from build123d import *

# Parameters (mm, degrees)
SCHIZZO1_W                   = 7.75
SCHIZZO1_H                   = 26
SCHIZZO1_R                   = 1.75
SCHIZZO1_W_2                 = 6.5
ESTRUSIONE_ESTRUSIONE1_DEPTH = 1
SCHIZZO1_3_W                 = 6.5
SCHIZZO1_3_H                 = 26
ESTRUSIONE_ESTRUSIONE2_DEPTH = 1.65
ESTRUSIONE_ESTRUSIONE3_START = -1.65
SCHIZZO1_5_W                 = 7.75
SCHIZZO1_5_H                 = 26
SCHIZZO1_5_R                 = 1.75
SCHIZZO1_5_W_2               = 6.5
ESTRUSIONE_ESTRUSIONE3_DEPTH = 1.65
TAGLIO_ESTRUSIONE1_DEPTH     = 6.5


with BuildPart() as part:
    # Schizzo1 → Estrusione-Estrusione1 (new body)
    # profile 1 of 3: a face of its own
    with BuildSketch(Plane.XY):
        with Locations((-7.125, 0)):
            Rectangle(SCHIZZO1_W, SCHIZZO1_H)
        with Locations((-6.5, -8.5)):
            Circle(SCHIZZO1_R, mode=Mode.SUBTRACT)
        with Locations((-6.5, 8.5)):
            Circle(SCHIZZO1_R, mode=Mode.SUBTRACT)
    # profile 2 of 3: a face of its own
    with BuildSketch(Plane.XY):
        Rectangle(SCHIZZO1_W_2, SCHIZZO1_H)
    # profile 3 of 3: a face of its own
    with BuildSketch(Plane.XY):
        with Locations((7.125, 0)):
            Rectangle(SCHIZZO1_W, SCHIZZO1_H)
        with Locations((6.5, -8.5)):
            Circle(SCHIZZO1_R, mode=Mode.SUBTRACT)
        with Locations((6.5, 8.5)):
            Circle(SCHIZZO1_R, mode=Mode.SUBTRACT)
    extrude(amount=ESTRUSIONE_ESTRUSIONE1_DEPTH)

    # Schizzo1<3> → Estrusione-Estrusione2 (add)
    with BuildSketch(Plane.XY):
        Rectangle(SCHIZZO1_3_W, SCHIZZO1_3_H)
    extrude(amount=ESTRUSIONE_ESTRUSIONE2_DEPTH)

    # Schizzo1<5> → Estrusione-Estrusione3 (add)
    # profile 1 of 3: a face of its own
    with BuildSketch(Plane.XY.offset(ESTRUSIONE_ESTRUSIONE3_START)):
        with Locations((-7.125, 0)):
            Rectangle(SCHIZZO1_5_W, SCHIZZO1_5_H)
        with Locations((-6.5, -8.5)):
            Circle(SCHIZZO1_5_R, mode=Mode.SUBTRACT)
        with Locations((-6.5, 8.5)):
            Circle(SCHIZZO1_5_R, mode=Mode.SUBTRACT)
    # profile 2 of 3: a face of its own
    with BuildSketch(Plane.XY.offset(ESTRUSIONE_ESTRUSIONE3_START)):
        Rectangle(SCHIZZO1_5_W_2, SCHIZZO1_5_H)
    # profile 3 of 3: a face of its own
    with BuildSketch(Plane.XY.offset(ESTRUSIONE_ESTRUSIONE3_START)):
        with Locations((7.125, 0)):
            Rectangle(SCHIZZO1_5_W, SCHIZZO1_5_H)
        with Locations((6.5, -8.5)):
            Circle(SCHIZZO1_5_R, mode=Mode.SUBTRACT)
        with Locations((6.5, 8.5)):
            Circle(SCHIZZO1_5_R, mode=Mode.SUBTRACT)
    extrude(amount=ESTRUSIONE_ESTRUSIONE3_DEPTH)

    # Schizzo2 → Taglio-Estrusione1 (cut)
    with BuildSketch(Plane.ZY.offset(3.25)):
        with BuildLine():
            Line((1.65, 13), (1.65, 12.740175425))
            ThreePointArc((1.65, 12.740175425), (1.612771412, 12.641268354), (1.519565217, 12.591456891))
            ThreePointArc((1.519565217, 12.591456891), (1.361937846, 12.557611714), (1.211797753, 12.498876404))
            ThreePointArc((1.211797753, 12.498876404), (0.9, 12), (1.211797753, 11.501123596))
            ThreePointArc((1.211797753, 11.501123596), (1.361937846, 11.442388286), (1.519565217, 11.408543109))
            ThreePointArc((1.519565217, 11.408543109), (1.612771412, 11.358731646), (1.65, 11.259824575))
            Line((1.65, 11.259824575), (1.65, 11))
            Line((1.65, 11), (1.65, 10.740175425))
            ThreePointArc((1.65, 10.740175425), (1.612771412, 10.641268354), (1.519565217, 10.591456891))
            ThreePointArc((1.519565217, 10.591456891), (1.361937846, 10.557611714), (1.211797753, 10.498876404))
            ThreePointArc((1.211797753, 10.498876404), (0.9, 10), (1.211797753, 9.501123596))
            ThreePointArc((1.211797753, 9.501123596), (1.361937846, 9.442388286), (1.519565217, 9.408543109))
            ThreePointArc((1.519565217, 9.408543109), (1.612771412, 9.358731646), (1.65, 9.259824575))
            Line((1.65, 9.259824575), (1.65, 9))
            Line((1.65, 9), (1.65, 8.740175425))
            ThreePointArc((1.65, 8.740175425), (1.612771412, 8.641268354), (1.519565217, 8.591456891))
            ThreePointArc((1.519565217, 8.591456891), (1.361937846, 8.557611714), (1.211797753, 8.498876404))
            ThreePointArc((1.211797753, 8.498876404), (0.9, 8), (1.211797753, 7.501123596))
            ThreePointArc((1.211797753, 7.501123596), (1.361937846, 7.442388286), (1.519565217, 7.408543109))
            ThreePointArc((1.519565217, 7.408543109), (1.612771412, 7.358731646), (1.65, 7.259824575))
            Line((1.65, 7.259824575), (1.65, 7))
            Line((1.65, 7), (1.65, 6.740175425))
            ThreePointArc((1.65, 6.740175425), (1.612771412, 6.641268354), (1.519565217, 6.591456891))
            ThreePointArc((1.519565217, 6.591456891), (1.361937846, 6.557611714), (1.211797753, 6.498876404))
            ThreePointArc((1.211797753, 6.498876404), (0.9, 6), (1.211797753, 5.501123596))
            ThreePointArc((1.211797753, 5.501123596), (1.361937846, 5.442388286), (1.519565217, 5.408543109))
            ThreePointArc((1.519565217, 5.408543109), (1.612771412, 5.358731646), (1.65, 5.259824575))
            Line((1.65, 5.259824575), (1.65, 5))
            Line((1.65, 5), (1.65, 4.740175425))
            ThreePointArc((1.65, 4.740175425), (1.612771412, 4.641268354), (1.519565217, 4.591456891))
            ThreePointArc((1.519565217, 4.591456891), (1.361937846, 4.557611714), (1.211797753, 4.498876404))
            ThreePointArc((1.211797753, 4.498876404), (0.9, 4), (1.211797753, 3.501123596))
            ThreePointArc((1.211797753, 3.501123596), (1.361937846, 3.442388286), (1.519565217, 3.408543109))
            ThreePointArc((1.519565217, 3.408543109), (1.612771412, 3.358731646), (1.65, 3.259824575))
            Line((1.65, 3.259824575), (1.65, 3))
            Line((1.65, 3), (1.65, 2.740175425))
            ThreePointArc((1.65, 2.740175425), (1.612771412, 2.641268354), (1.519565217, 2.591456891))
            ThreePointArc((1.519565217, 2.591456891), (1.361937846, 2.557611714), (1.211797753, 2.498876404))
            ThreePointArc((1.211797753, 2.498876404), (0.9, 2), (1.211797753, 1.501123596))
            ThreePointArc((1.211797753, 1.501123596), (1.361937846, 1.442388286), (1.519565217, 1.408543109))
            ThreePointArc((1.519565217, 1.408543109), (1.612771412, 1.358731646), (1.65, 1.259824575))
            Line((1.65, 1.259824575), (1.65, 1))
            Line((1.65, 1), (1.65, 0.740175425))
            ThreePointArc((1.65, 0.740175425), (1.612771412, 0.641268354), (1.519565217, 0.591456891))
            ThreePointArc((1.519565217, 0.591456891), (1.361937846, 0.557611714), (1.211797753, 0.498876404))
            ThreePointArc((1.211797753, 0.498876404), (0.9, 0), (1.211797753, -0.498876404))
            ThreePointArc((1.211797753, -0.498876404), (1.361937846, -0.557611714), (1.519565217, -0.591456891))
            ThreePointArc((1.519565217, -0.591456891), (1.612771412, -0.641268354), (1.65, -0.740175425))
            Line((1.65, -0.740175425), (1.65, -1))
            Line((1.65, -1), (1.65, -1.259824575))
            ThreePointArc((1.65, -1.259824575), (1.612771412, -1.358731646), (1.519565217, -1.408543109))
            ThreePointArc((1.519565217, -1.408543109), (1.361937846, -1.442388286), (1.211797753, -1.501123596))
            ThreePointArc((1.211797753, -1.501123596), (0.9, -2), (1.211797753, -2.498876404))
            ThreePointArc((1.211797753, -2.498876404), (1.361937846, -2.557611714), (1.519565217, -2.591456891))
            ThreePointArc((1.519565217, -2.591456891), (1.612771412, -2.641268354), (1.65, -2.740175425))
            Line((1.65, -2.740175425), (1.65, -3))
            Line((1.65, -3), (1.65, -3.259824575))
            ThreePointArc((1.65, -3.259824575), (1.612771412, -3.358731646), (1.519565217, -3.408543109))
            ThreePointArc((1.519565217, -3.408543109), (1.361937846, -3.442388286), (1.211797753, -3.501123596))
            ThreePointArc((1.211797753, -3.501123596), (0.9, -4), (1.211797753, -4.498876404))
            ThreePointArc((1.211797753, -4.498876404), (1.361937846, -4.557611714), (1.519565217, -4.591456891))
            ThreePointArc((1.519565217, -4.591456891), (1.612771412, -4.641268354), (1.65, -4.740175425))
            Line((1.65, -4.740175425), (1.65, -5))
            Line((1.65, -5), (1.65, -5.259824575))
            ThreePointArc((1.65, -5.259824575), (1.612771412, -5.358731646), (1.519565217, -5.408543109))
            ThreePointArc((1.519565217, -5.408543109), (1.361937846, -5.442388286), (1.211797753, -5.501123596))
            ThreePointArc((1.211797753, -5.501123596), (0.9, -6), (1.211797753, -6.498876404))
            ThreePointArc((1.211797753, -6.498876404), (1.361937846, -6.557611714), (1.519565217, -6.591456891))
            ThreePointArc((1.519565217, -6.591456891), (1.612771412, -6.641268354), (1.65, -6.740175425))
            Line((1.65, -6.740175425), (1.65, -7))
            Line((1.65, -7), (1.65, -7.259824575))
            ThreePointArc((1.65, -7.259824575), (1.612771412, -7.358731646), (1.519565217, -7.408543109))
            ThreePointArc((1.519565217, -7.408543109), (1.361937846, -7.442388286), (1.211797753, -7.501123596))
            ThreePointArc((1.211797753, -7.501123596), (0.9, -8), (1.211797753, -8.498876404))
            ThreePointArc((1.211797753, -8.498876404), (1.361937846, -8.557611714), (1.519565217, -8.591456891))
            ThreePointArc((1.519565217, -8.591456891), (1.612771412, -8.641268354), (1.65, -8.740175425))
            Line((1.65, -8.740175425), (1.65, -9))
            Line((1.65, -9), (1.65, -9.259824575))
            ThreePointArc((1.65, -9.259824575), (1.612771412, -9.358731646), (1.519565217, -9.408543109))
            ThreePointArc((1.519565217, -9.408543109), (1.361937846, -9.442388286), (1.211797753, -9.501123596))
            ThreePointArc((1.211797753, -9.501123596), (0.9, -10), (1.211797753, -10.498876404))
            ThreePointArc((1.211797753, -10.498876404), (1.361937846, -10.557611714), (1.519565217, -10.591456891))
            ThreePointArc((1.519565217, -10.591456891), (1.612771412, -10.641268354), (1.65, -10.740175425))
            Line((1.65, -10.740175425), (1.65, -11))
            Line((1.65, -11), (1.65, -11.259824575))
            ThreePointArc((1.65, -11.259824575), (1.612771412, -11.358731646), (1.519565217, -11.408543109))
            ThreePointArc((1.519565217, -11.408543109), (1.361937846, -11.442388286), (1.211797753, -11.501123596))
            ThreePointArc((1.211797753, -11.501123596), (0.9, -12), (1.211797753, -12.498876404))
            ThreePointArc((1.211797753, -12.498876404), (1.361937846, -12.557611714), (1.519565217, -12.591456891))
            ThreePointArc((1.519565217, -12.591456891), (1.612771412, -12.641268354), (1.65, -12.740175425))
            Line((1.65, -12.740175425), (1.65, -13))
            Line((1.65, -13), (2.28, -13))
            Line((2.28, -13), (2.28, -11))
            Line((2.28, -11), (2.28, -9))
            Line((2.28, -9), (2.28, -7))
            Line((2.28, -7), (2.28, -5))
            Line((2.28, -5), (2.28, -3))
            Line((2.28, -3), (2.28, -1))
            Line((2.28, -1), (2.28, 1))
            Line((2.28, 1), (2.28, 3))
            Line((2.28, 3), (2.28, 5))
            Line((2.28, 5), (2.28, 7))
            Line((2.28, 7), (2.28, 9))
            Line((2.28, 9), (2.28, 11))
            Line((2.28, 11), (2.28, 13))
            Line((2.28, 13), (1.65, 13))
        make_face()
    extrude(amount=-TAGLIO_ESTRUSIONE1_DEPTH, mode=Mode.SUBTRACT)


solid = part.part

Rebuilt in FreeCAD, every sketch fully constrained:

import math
import FreeCAD as App
import Part
import Sketcher

doc = App.newDocument("Part")
params = doc.addObject("Spreadsheet::Sheet", "Params")
for row, (alias, value) in enumerate([
    ("sketch1_diameter", "3.5 mm"),
    ("sketch1_width", "22 mm"),
    ("sketch1_height", "26 mm"),
    ("pad1_length", "1 mm"),
    ("sketch2_height", "26 mm"),
    ("sketch2_width", "6.5 mm"),
    ("pad2_length", "1.65 mm"),
    ("sketch3_diameter", "3.5 mm"),
    ("sketch3_width", "22 mm"),
    ("sketch3_height", "26 mm"),
    ("pad3_length", "1.65 mm"),
    ("sketch4_radius", "1 mm"),
    ("sketch4_width", "26 mm"),
    ("sketch4_radius2", "0.15 mm"),
    ("sketch4_height", "0.63 mm"),
    ("pocket1_length", "6.5 mm"),
], start=1):
    params.set(f"A{row}", alias)
    params.set(f"B{row}", "=" + value)
    params.setAlias(f"B{row}", alias)

body = doc.addObject("PartDesign::Body", "Body")

sketch1 = body.newObject("Sketcher::SketchObject", "Sketch")
sketch1.AttachmentSupport = (doc.getObject("XY_Plane"), [""])
sketch1.MapMode = "FlatFace"
sketch1.addGeometry([
    Part.LineSegment(App.Vector(-11, 13, 0), App.Vector(-11, -13, 0)),
    Part.LineSegment(App.Vector(-11, -13, 0), App.Vector(11, -13, 0)),
    Part.LineSegment(App.Vector(11, -13, 0), App.Vector(11, 13, 0)),
    Part.LineSegment(App.Vector(11, 13, 0), App.Vector(-11, 13, 0)),
    Part.Circle(App.Vector(-6.5, -8.5, 0), App.Vector(0, 0, 1), 1.8),
    Part.Circle(App.Vector(-6.5, 8.5, 0), App.Vector(0, 0, 1), 1.8),
    Part.Circle(App.Vector(6.5, 8.5, 0), App.Vector(0, 0, 1), 1.8),
    Part.Circle(App.Vector(6.5, -8.5, 0), App.Vector(0, 0, 1), 1.8),
], False)
sketch1.addConstraint([
    Sketcher.Constraint("Coincident", 0, 2, 1, 1),
    Sketcher.Constraint("Coincident", 1, 2, 2, 1),
    Sketcher.Constraint("Coincident", 2, 2, 3, 1),
    Sketcher.Constraint("Coincident", 3, 2, 0, 1),
    Sketcher.Constraint("Vertical", 0),
    Sketcher.Constraint("Horizontal", 1),
    Sketcher.Constraint("Vertical", 2),
    Sketcher.Constraint("Horizontal", 3),
    Sketcher.Constraint("Equal", 4, 5),
    Sketcher.Constraint("Equal", 5, 6),
    Sketcher.Constraint("Equal", 6, 7),
    Sketcher.Constraint("Symmetric", 4, 3, 6, 3, -1, 1),
    Sketcher.Constraint("Symmetric", 5, 3, 7, 3, -1, 1),
    Sketcher.Constraint("Symmetric", 0, 2, 2, 2, -1, 1),
    Sketcher.Constraint("Symmetric", 5, 3, 6, 3, -2),
    Sketcher.Constraint("Diameter", 4, 3.5),
    Sketcher.Constraint("DistanceX", 1, 1, 1, 2, 22.0),
    Sketcher.Constraint("DistanceY", 0, 2, 0, 1, 26.0),
    Sketcher.Constraint("DistanceY", 4, 3, 5, 3, 17.0),
    Sketcher.Constraint("DistanceX", 5, 3, 6, 3, 13.0),
])
sketch1.setExpression("Constraints[15]", "Params.sketch1_diameter")
sketch1.setExpression("Constraints[16]", "Params.sketch1_width")
sketch1.setExpression("Constraints[17]", "Params.sketch1_height")
pad1 = body.newObject("PartDesign::Pad", "Pad")
pad1.Profile = sketch1
pad1.setExpression("Length", "Params.pad1_length")

sketch2 = body.newObject("Sketcher::SketchObject", "Sketch001")
sketch2.AttachmentSupport = (doc.getObject("XY_Plane"), [""])
sketch2.MapMode = "FlatFace"
sketch2.addGeometry([
    Part.LineSegment(App.Vector(-3, 13, 0), App.Vector(-3, -13, 0)),
    Part.LineSegment(App.Vector(-3, -13, 0), App.Vector(3, -13, 0)),
    Part.LineSegment(App.Vector(3, -13, 0), App.Vector(3, 13, 0)),
    Part.LineSegment(App.Vector(3, 13, 0), App.Vector(-3, 13, 0)),
], False)
sketch2.addConstraint([
    Sketcher.Constraint("Coincident", 0, 2, 1, 1),
    Sketcher.Constraint("Coincident", 1, 2, 2, 1),
    Sketcher.Constraint("Coincident", 2, 2, 3, 1),
    Sketcher.Constraint("Coincident", 3, 2, 0, 1),
    Sketcher.Constraint("Vertical", 0),
    Sketcher.Constraint("Horizontal", 1),
    Sketcher.Constraint("Vertical", 2),
    Sketcher.Constraint("Horizontal", 3),
    Sketcher.Constraint("Symmetric", 0, 2, 2, 2, -1, 1),
    Sketcher.Constraint("DistanceY", 0, 2, 0, 1, 26.0),
    Sketcher.Constraint("DistanceX", 1, 1, 1, 2, 6.5),
])
sketch2.setExpression("Constraints[9]", "Params.sketch2_height")
sketch2.setExpression("Constraints[10]", "Params.sketch2_width")
pad2 = body.newObject("PartDesign::Pad", "Pad001")
pad2.Profile = sketch2
pad2.setExpression("Length", "Params.pad2_length")

sketch3 = body.newObject("Sketcher::SketchObject", "Sketch002")
sketch3.AttachmentSupport = (doc.getObject("XY_Plane"), [""])
sketch3.MapMode = "FlatFace"
sketch3.AttachmentOffset = App.Placement(App.Vector(0, 0, -1.65), App.Rotation())
sketch3.addGeometry([
    Part.LineSegment(App.Vector(-11, 13, 0), App.Vector(-11, -13, 0)),
    Part.LineSegment(App.Vector(-11, -13, 0), App.Vector(11, -13, 0)),
    Part.LineSegment(App.Vector(11, -13, 0), App.Vector(11, 13, 0)),
    Part.LineSegment(App.Vector(11, 13, 0), App.Vector(-11, 13, 0)),
    Part.Circle(App.Vector(-6.5, -8.5, 0), App.Vector(0, 0, 1), 1.8),
    Part.Circle(App.Vector(-6.5, 8.5, 0), App.Vector(0, 0, 1), 1.8),
    Part.Circle(App.Vector(6.5, 8.5, 0), App.Vector(0, 0, 1), 1.8),
    Part.Circle(App.Vector(6.5, -8.5, 0), App.Vector(0, 0, 1), 1.8),
], False)
sketch3.addConstraint([
    Sketcher.Constraint("Coincident", 0, 2, 1, 1),
    Sketcher.Constraint("Coincident", 1, 2, 2, 1),
    Sketcher.Constraint("Coincident", 2, 2, 3, 1),
    Sketcher.Constraint("Coincident", 3, 2, 0, 1),
    Sketcher.Constraint("Vertical", 0),
    Sketcher.Constraint("Horizontal", 1),
    Sketcher.Constraint("Vertical", 2),
    Sketcher.Constraint("Horizontal", 3),
    Sketcher.Constraint("Equal", 4, 5),
    Sketcher.Constraint("Equal", 5, 6),
    Sketcher.Constraint("Equal", 6, 7),
    Sketcher.Constraint("Symmetric", 4, 3, 6, 3, -1, 1),
    Sketcher.Constraint("Symmetric", 5, 3, 7, 3, -1, 1),
    Sketcher.Constraint("Symmetric", 0, 2, 2, 2, -1, 1),
    Sketcher.Constraint("Symmetric", 5, 3, 6, 3, -2),
    Sketcher.Constraint("Diameter", 4, 3.5),
    Sketcher.Constraint("DistanceX", 1, 1, 1, 2, 22.0),
    Sketcher.Constraint("DistanceY", 0, 2, 0, 1, 26.0),
    Sketcher.Constraint("DistanceY", 4, 3, 5, 3, 17.0),
    Sketcher.Constraint("DistanceX", 5, 3, 6, 3, 13.0),
])
sketch3.setExpression("Constraints[15]", "Params.sketch3_diameter")
sketch3.setExpression("Constraints[16]", "Params.sketch3_width")
sketch3.setExpression("Constraints[17]", "Params.sketch3_height")
pad3 = body.newObject("PartDesign::Pad", "Pad002")
pad3.Profile = sketch3
pad3.setExpression("Length", "Params.pad3_length")

sketch4 = body.newObject("Sketcher::SketchObject", "Sketch003")
sketch4.AttachmentSupport = (doc.getObject("YZ_Plane"), [""])
sketch4.MapMode = "FlatFace"
sketch4.AttachmentOffset = App.Placement(App.Vector(0, 0, -3.25), App.Rotation())
sketch4.addGeometry([
    Part.LineSegment(App.Vector(13, 1.65, 0), App.Vector(12.74, 1.65, 0)),
    Part.ArcOfCircle(Part.Circle(App.Vector(12.74, 1.5, 0), App.Vector(0, 0, 1), 0.15), math.radians(90), math.radians(173)),
    Part.ArcOfCircle(Part.Circle(App.Vector(11.6, 1.65, 0), App.Vector(0, 0, 1), 1), math.radians(-25.99), math.radians(-7.49)),
    Part.ArcOfCircle(Part.Circle(App.Vector(12, 1.45, 0), App.Vector(0, 0, 1), 0.55), math.radians(-154), math.radians(-26)),
    Part.ArcOfCircle(Part.Circle(App.Vector(12.4, 1.65, 0), App.Vector(0, 0, 1), 1), math.radians(-172.51), math.radians(-154.01)),
    Part.ArcOfCircle(Part.Circle(App.Vector(11.26, 1.5, 0), App.Vector(0, 0, 1), 0.15), math.radians(7), math.radians(90)),
    Part.LineSegment(App.Vector(11.26, 1.65, 0), App.Vector(10.74, 1.65, 0)),
    Part.ArcOfCircle(Part.Circle(App.Vector(10.74, 1.5, 0), App.Vector(0, 0, 1), 0.15), math.radians(90), math.radians(173)),
    Part.ArcOfCircle(Part.Circle(App.Vector(9.6, 1.65, 0), App.Vector(0, 0, 1), 1), math.radians(-25.99), math.radians(-7.49)),
    Part.ArcOfCircle(Part.Circle(App.Vector(10, 1.45, 0), App.Vector(0, 0, 1), 0.55), math.radians(-154), math.radians(-26)),
    Part.ArcOfCircle(Part.Circle(App.Vector(10.4, 1.65, 0), App.Vector(0, 0, 1), 1), math.radians(-172.51), math.radians(-154.01)),
    Part.ArcOfCircle(Part.Circle(App.Vector(9.26, 1.5, 0), App.Vector(0, 0, 1), 0.15), math.radians(7), math.radians(90)),
    Part.LineSegment(App.Vector(9.26, 1.65, 0), App.Vector(8.74, 1.65, 0)),
    Part.ArcOfCircle(Part.Circle(App.Vector(8.74, 1.5, 0), App.Vector(0, 0, 1), 0.15), math.radians(90), math.radians(173)),
    Part.ArcOfCircle(Part.Circle(App.Vector(7.6, 1.65, 0), App.Vector(0, 0, 1), 1), math.radians(-25.99), math.radians(-7.49)),
    Part.ArcOfCircle(Part.Circle(App.Vector(8, 1.45, 0), App.Vector(0, 0, 1), 0.55), math.radians(-154), math.radians(-26)),
    Part.ArcOfCircle(Part.Circle(App.Vector(8.4, 1.65, 0), App.Vector(0, 0, 1), 1), math.radians(-172.51), math.radians(-154.01)),
    Part.ArcOfCircle(Part.Circle(App.Vector(7.26, 1.5, 0), App.Vector(0, 0, 1), 0.15), math.radians(7), math.radians(90)),
    Part.LineSegment(App.Vector(7.26, 1.65, 0), App.Vector(6.74, 1.65, 0)),
    Part.ArcOfCircle(Part.Circle(App.Vector(6.74, 1.5, 0), App.Vector(0, 0, 1), 0.15), math.radians(90), math.radians(173)),
    Part.ArcOfCircle(Part.Circle(App.Vector(5.6, 1.65, 0), App.Vector(0, 0, 1), 1), math.radians(-25.99), math.radians(-7.49)),
    Part.ArcOfCircle(Part.Circle(App.Vector(6, 1.45, 0), App.Vector(0, 0, 1), 0.55), math.radians(-154), math.radians(-26)),
    Part.ArcOfCircle(Part.Circle(App.Vector(6.4, 1.65, 0), App.Vector(0, 0, 1), 1), math.radians(-172.51), math.radians(-154.01)),
    Part.ArcOfCircle(Part.Circle(App.Vector(5.26, 1.5, 0), App.Vector(0, 0, 1), 0.15), math.radians(7), math.radians(90)),
    Part.LineSegment(App.Vector(5.26, 1.65, 0), App.Vector(4.74, 1.65, 0)),
    Part.ArcOfCircle(Part.Circle(App.Vector(4.74, 1.5, 0), App.Vector(0, 0, 1), 0.15), math.radians(90), math.radians(173)),
    Part.ArcOfCircle(Part.Circle(App.Vector(3.6, 1.65, 0), App.Vector(0, 0, 1), 1), math.radians(-25.99), math.radians(-7.49)),
    Part.ArcOfCircle(Part.Circle(App.Vector(4, 1.45, 0), App.Vector(0, 0, 1), 0.55), math.radians(-154), math.radians(-26)),
    Part.ArcOfCircle(Part.Circle(App.Vector(4.4, 1.65, 0), App.Vector(0, 0, 1), 1), math.radians(-172.51), math.radians(-154.01)),
    Part.ArcOfCircle(Part.Circle(App.Vector(3.26, 1.5, 0), App.Vector(0, 0, 1), 0.15), math.radians(7), math.radians(90)),
    Part.LineSegment(App.Vector(3.26, 1.65, 0), App.Vector(2.74, 1.65, 0)),
    Part.ArcOfCircle(Part.Circle(App.Vector(2.74, 1.5, 0), App.Vector(0, 0, 1), 0.15), math.radians(90), math.radians(173)),
    Part.ArcOfCircle(Part.Circle(App.Vector(1.6, 1.65, 0), App.Vector(0, 0, 1), 1), math.radians(-25.99), math.radians(-7.49)),
    Part.ArcOfCircle(Part.Circle(App.Vector(2, 1.45, 0), App.Vector(0, 0, 1), 0.55), math.radians(-154), math.radians(-26)),
    Part.ArcOfCircle(Part.Circle(App.Vector(2.4, 1.65, 0), App.Vector(0, 0, 1), 1), math.radians(-172.51), math.radians(-154.01)),
    Part.ArcOfCircle(Part.Circle(App.Vector(1.26, 1.5, 0), App.Vector(0, 0, 1), 0.15), math.radians(7), math.radians(90)),
    Part.LineSegment(App.Vector(1.26, 1.65, 0), App.Vector(0.74, 1.65, 0)),
    Part.ArcOfCircle(Part.Circle(App.Vector(0.74, 1.5, 0), App.Vector(0, 0, 1), 0.15), math.radians(90), math.radians(173)),
    Part.ArcOfCircle(Part.Circle(App.Vector(-0.4, 1.65, 0), App.Vector(0, 0, 1), 1), math.radians(-25.99), math.radians(-7.49)),
    Part.ArcOfCircle(Part.Circle(App.Vector(0, 1.45, 0), App.Vector(0, 0, 1), 0.55), math.radians(-154), math.radians(-26)),
    Part.ArcOfCircle(Part.Circle(App.Vector(0.4, 1.65, 0), App.Vector(0, 0, 1), 1), math.radians(-172.51), math.radians(-154.01)),
    Part.ArcOfCircle(Part.Circle(App.Vector(-0.74, 1.5, 0), App.Vector(0, 0, 1), 0.15), math.radians(7), math.radians(90)),
    Part.LineSegment(App.Vector(-0.74, 1.65, 0), App.Vector(-1.26, 1.65, 0)),
    Part.ArcOfCircle(Part.Circle(App.Vector(-1.26, 1.5, 0), App.Vector(0, 0, 1), 0.15), math.radians(90), math.radians(173)),
    Part.ArcOfCircle(Part.Circle(App.Vector(-2.4, 1.65, 0), App.Vector(0, 0, 1), 1), math.radians(-25.99), math.radians(-7.49)),
    Part.ArcOfCircle(Part.Circle(App.Vector(-2, 1.45, 0), App.Vector(0, 0, 1), 0.55), math.radians(-154), math.radians(-26)),
    Part.ArcOfCircle(Part.Circle(App.Vector(-1.6, 1.65, 0), App.Vector(0, 0, 1), 1), math.radians(-172.51), math.radians(-154.01)),
    Part.ArcOfCircle(Part.Circle(App.Vector(-2.74, 1.5, 0), App.Vector(0, 0, 1), 0.15), math.radians(7), math.radians(90)),
    Part.LineSegment(App.Vector(-2.74, 1.65, 0), App.Vector(-3.26, 1.65, 0)),
    Part.ArcOfCircle(Part.Circle(App.Vector(-3.26, 1.5, 0), App.Vector(0, 0, 1), 0.15), math.radians(90), math.radians(173)),
    Part.ArcOfCircle(Part.Circle(App.Vector(-4.4, 1.65, 0), App.Vector(0, 0, 1), 1), math.radians(-25.99), math.radians(-7.49)),
    Part.ArcOfCircle(Part.Circle(App.Vector(-4, 1.45, 0), App.Vector(0, 0, 1), 0.55), math.radians(-154), math.radians(-26)),
    Part.ArcOfCircle(Part.Circle(App.Vector(-3.6, 1.65, 0), App.Vector(0, 0, 1), 1), math.radians(-172.51), math.radians(-154.01)),
    Part.ArcOfCircle(Part.Circle(App.Vector(-4.74, 1.5, 0), App.Vector(0, 0, 1), 0.15), math.radians(7), math.radians(90)),
    Part.LineSegment(App.Vector(-4.74, 1.65, 0), App.Vector(-5.26, 1.65, 0)),
    Part.ArcOfCircle(Part.Circle(App.Vector(-5.26, 1.5, 0), App.Vector(0, 0, 1), 0.15), math.radians(90), math.radians(173)),
    Part.ArcOfCircle(Part.Circle(App.Vector(-6.4, 1.65, 0), App.Vector(0, 0, 1), 1), math.radians(-25.99), math.radians(-7.49)),
    Part.ArcOfCircle(Part.Circle(App.Vector(-6, 1.45, 0), App.Vector(0, 0, 1), 0.55), math.radians(-154), math.radians(-26)),
    Part.ArcOfCircle(Part.Circle(App.Vector(-5.6, 1.65, 0), App.Vector(0, 0, 1), 1), math.radians(-172.51), math.radians(-154.01)),
    Part.ArcOfCircle(Part.Circle(App.Vector(-6.74, 1.5, 0), App.Vector(0, 0, 1), 0.15), math.radians(7), math.radians(90)),
    Part.LineSegment(App.Vector(-6.74, 1.65, 0), App.Vector(-7.26, 1.65, 0)),
    Part.ArcOfCircle(Part.Circle(App.Vector(-7.26, 1.5, 0), App.Vector(0, 0, 1), 0.15), math.radians(90), math.radians(173)),
    Part.ArcOfCircle(Part.Circle(App.Vector(-8.4, 1.65, 0), App.Vector(0, 0, 1), 1), math.radians(-25.99), math.radians(-7.49)),
    Part.ArcOfCircle(Part.Circle(App.Vector(-8, 1.45, 0), App.Vector(0, 0, 1), 0.55), math.radians(-154), math.radians(-26)),
    Part.ArcOfCircle(Part.Circle(App.Vector(-7.6, 1.65, 0), App.Vector(0, 0, 1), 1), math.radians(-172.51), math.radians(-154.01)),
    Part.ArcOfCircle(Part.Circle(App.Vector(-8.74, 1.5, 0), App.Vector(0, 0, 1), 0.15), math.radians(7), math.radians(90)),
    Part.LineSegment(App.Vector(-8.74, 1.65, 0), App.Vector(-9.26, 1.65, 0)),
    Part.ArcOfCircle(Part.Circle(App.Vector(-9.26, 1.5, 0), App.Vector(0, 0, 1), 0.15), math.radians(90), math.radians(173)),
    Part.ArcOfCircle(Part.Circle(App.Vector(-10.4, 1.65, 0), App.Vector(0, 0, 1), 1), math.radians(-25.99), math.radians(-7.49)),
    Part.ArcOfCircle(Part.Circle(App.Vector(-10, 1.45, 0), App.Vector(0, 0, 1), 0.55), math.radians(-154), math.radians(-26)),
    Part.ArcOfCircle(Part.Circle(App.Vector(-9.6, 1.65, 0), App.Vector(0, 0, 1), 1), math.radians(-172.51), math.radians(-154.01)),
    Part.ArcOfCircle(Part.Circle(App.Vector(-10.74, 1.5, 0), App.Vector(0, 0, 1), 0.15), math.radians(7), math.radians(90)),
    Part.LineSegment(App.Vector(-10.74, 1.65, 0), App.Vector(-11.26, 1.65, 0)),
    Part.ArcOfCircle(Part.Circle(App.Vector(-11.26, 1.5, 0), App.Vector(0, 0, 1), 0.15), math.radians(90), math.radians(173)),
    Part.ArcOfCircle(Part.Circle(App.Vector(-12.4, 1.65, 0), App.Vector(0, 0, 1), 1), math.radians(-25.99), math.radians(-7.49)),
    Part.ArcOfCircle(Part.Circle(App.Vector(-12, 1.45, 0), App.Vector(0, 0, 1), 0.55), math.radians(-154), math.radians(-26)),
    Part.ArcOfCircle(Part.Circle(App.Vector(-11.6, 1.65, 0), App.Vector(0, 0, 1), 1), math.radians(-172.51), math.radians(-154.01)),
    Part.ArcOfCircle(Part.Circle(App.Vector(-12.74, 1.5, 0), App.Vector(0, 0, 1), 0.15), math.radians(7), math.radians(90)),
    Part.LineSegment(App.Vector(-12.74, 1.65, 0), App.Vector(-13, 1.65, 0)),
    Part.LineSegment(App.Vector(-13, 1.65, 0), App.Vector(-13, 2.28, 0)),
    Part.LineSegment(App.Vector(-13, 2.28, 0), App.Vector(13, 2.28, 0)),
    Part.LineSegment(App.Vector(13, 2.28, 0), App.Vector(13, 1.65, 0)),
], False)
sketch4.addConstraint([
    Sketcher.Constraint("Tangent", 0, 2, 1, 1),
    Sketcher.Constraint("Tangent", 1, 2, 2, 2),
    Sketcher.Constraint("Tangent", 2, 1, 3, 2),
    Sketcher.Constraint("Tangent", 3, 1, 4, 2),
    Sketcher.Constraint("Tangent", 4, 1, 5, 1),
    Sketcher.Constraint("Tangent", 5, 2, 6, 1),
    Sketcher.Constraint("Tangent", 6, 2, 7, 1),
    Sketcher.Constraint("Tangent", 7, 2, 8, 2),
    Sketcher.Constraint("Tangent", 8, 1, 9, 2),
    Sketcher.Constraint("Tangent", 9, 1, 10, 2),
    Sketcher.Constraint("Tangent", 10, 1, 11, 1),
    Sketcher.Constraint("Tangent", 11, 2, 12, 1),
    Sketcher.Constraint("Tangent", 12, 2, 13, 1),
    Sketcher.Constraint("Tangent", 13, 2, 14, 2),
    Sketcher.Constraint("Tangent", 14, 1, 15, 2),
    Sketcher.Constraint("Tangent", 15, 1, 16, 2),
    Sketcher.Constraint("Tangent", 16, 1, 17, 1),
    Sketcher.Constraint("Tangent", 17, 2, 18, 1),
    Sketcher.Constraint("Tangent", 18, 2, 19, 1),
    Sketcher.Constraint("Tangent", 19, 2, 20, 2),
    Sketcher.Constraint("Tangent", 20, 1, 21, 2),
    Sketcher.Constraint("Tangent", 21, 1, 22, 2),
    Sketcher.Constraint("Tangent", 22, 1, 23, 1),
    Sketcher.Constraint("Tangent", 23, 2, 24, 1),
    Sketcher.Constraint("Tangent", 24, 2, 25, 1),
    Sketcher.Constraint("Tangent", 25, 2, 26, 2),
    Sketcher.Constraint("Tangent", 26, 1, 27, 2),
    Sketcher.Constraint("Tangent", 27, 1, 28, 2),
    Sketcher.Constraint("Tangent", 28, 1, 29, 1),
    Sketcher.Constraint("Tangent", 29, 2, 30, 1),
    Sketcher.Constraint("Tangent", 30, 2, 31, 1),
    Sketcher.Constraint("Tangent", 31, 2, 32, 2),
    Sketcher.Constraint("Tangent", 32, 1, 33, 2),
    Sketcher.Constraint("Tangent", 33, 1, 34, 2),
    Sketcher.Constraint("Tangent", 34, 1, 35, 1),
    Sketcher.Constraint("Tangent", 35, 2, 36, 1),
    Sketcher.Constraint("Tangent", 36, 2, 37, 1),
    Sketcher.Constraint("Tangent", 37, 2, 38, 2),
    Sketcher.Constraint("Tangent", 38, 1, 39, 2),
    Sketcher.Constraint("Tangent", 39, 1, 40, 2),
    Sketcher.Constraint("Tangent", 40, 1, 41, 1),
    Sketcher.Constraint("Tangent", 41, 2, 42, 1),
    Sketcher.Constraint("Tangent", 42, 2, 43, 1),
    Sketcher.Constraint("Tangent", 43, 2, 44, 2),
    Sketcher.Constraint("Tangent", 44, 1, 45, 2),
    Sketcher.Constraint("Tangent", 45, 1, 46, 2),
    Sketcher.Constraint("Tangent", 46, 1, 47, 1),
    Sketcher.Constraint("Tangent", 47, 2, 48, 1),
    Sketcher.Constraint("Tangent", 48, 2, 49, 1),
    Sketcher.Constraint("Tangent", 49, 2, 50, 2),
    Sketcher.Constraint("Tangent", 50, 1, 51, 2),
    Sketcher.Constraint("Tangent", 51, 1, 52, 2),
    Sketcher.Constraint("Tangent", 52, 1, 53, 1),
    Sketcher.Constraint("Tangent", 53, 2, 54, 1),
    Sketcher.Constraint("Tangent", 54, 2, 55, 1),
    Sketcher.Constraint("Tangent", 55, 2, 56, 2),
    Sketcher.Constraint("Tangent", 56, 1, 57, 2),
    Sketcher.Constraint("Tangent", 57, 1, 58, 2),
    Sketcher.Constraint("Tangent", 58, 1, 59, 1),
    Sketcher.Constraint("Tangent", 59, 2, 60, 1),
    Sketcher.Constraint("Tangent", 60, 2, 61, 1),
    Sketcher.Constraint("Tangent", 61, 2, 62, 2),
    Sketcher.Constraint("Tangent", 62, 1, 63, 2),
    Sketcher.Constraint("Tangent", 63, 1, 64, 2),
    Sketcher.Constraint("Tangent", 64, 1, 65, 1),
    Sketcher.Constraint("Tangent", 65, 2, 66, 1),
    Sketcher.Constraint("Tangent", 66, 2, 67, 1),
    Sketcher.Constraint("Tangent", 67, 2, 68, 2),
    Sketcher.Constraint("Tangent", 68, 1, 69, 2),
    Sketcher.Constraint("Tangent", 69, 1, 70, 2),
    Sketcher.Constraint("Tangent", 70, 1, 71, 1),
    Sketcher.Constraint("Tangent", 71, 2, 72, 1),
    Sketcher.Constraint("Tangent", 72, 2, 73, 1),
    Sketcher.Constraint("Tangent", 73, 2, 74, 2),
    Sketcher.Constraint("Tangent", 74, 1, 75, 2),
    Sketcher.Constraint("Tangent", 75, 1, 76, 2),
    Sketcher.Constraint("Tangent", 76, 1, 77, 1),
    Sketcher.Constraint("Tangent", 77, 2, 78, 1),
    Sketcher.Constraint("Coincident", 78, 2, 79, 1),
    Sketcher.Constraint("Coincident", 79, 2, 80, 1),
    Sketcher.Constraint("Coincident", 80, 2, 81, 1),
    Sketcher.Constraint("Coincident", 81, 2, 0, 1),
    Sketcher.Constraint("Horizontal", 0),
    Sketcher.Constraint("Horizontal", 6),
    Sketcher.Constraint("Horizontal", 12),
    Sketcher.Constraint("Horizontal", 18),
    Sketcher.Constraint("Horizontal", 24),
    Sketcher.Constraint("Horizontal", 30),
    Sketcher.Constraint("Horizontal", 36),
    Sketcher.Constraint("Horizontal", 42),
    Sketcher.Constraint("Horizontal", 48),
    Sketcher.Constraint("Horizontal", 54),
    Sketcher.Constraint("Horizontal", 60),
    Sketcher.Constraint("Horizontal", 66),
    Sketcher.Constraint("Horizontal", 72),
    Sketcher.Constraint("Horizontal", 78),
    Sketcher.Constraint("Vertical", 79),
    Sketcher.Constraint("Horizontal", 80),
    Sketcher.Constraint("Vertical", 81),
    Sketcher.Constraint("Equal", 2, 4),
    Sketcher.Constraint("Equal", 1, 5),
    Sketcher.Constraint("Equal", 5, 7),
    Sketcher.Constraint("Equal", 4, 8),
    Sketcher.Constraint("Equal", 3, 9),
    Sketcher.Constraint("Equal", 8, 10),
    Sketcher.Constraint("Equal", 7, 11),
    Sketcher.Constraint("Equal", 11, 13),
    Sketcher.Constraint("Equal", 10, 14),
    Sketcher.Constraint("Equal", 9, 15),
    Sketcher.Constraint("Equal", 14, 16),
    Sketcher.Constraint("Equal", 13, 17),
    Sketcher.Constraint("Equal", 17, 19),
    Sketcher.Constraint("Equal", 16, 20),
    Sketcher.Constraint("Equal", 15, 21),
    Sketcher.Constraint("Equal", 20, 22),
    Sketcher.Constraint("Equal", 19, 23),
    Sketcher.Constraint("Equal", 23, 25),
    Sketcher.Constraint("Equal", 22, 26),
    Sketcher.Constraint("Equal", 21, 27),
    Sketcher.Constraint("Equal", 26, 28),
    Sketcher.Constraint("Equal", 25, 29),
    Sketcher.Constraint("Equal", 29, 31),
    Sketcher.Constraint("Equal", 28, 32),
    Sketcher.Constraint("Equal", 27, 33),
    Sketcher.Constraint("Equal", 32, 34),
    Sketcher.Constraint("Equal", 31, 35),
    Sketcher.Constraint("Equal", 35, 37),
    Sketcher.Constraint("Equal", 34, 38),
    Sketcher.Constraint("Equal", 33, 39),
    Sketcher.Constraint("Equal", 38, 40),
    Sketcher.Constraint("Equal", 37, 41),
    Sketcher.Constraint("Equal", 41, 43),
    Sketcher.Constraint("Equal", 40, 44),
    Sketcher.Constraint("Equal", 39, 45),
    Sketcher.Constraint("Equal", 44, 46),
    Sketcher.Constraint("Equal", 43, 47),
    Sketcher.Constraint("Equal", 47, 49),
    Sketcher.Constraint("Equal", 46, 50),
    Sketcher.Constraint("Equal", 45, 51),
    Sketcher.Constraint("Equal", 50, 52),
    Sketcher.Constraint("Equal", 49, 53),
    Sketcher.Constraint("Equal", 53, 55),
    Sketcher.Constraint("Equal", 52, 56),
    Sketcher.Constraint("Equal", 51, 57),
    Sketcher.Constraint("Equal", 56, 58),
    Sketcher.Constraint("Equal", 55, 59),
    Sketcher.Constraint("Equal", 59, 61),
    Sketcher.Constraint("Equal", 58, 62),
    Sketcher.Constraint("Equal", 57, 63),
    Sketcher.Constraint("Equal", 62, 64),
    Sketcher.Constraint("Equal", 61, 65),
    Sketcher.Constraint("Equal", 65, 67),
    Sketcher.Constraint("Equal", 64, 68),
    Sketcher.Constraint("Equal", 63, 69),
    Sketcher.Constraint("Equal", 68, 70),
    Sketcher.Constraint("Equal", 67, 71),
    Sketcher.Constraint("Equal", 71, 73),
    Sketcher.Constraint("Equal", 70, 74),
    Sketcher.Constraint("Equal", 69, 75),
    Sketcher.Constraint("Equal", 74, 76),
    Sketcher.Constraint("Equal", 73, 77),
    Sketcher.Constraint("Symmetric", 38, 3, 40, 3, -2),
    Sketcher.Constraint("Symmetric", 35, 3, 43, 3, -2),
    Sketcher.Constraint("Symmetric", 33, 3, 45, 3, -2),
    Sketcher.Constraint("Symmetric", 31, 3, 47, 3, -2),
    Sketcher.Constraint("Symmetric", 28, 3, 50, 3, -2),
    Sketcher.Constraint("Symmetric", 26, 3, 52, 3, -2),
    Sketcher.Constraint("Symmetric", 23, 3, 55, 3, -2),
    Sketcher.Constraint("Symmetric", 21, 3, 57, 3, -2),
    Sketcher.Constraint("Symmetric", 19, 3, 59, 3, -2),
    Sketcher.Constraint("Symmetric", 16, 3, 62, 3, -2),
    Sketcher.Constraint("Symmetric", 14, 3, 64, 3, -2),
    Sketcher.Constraint("Symmetric", 11, 3, 67, 3, -2),
    Sketcher.Constraint("Symmetric", 9, 3, 69, 3, -2),
    Sketcher.Constraint("Symmetric", 7, 3, 71, 3, -2),
    Sketcher.Constraint("Symmetric", 4, 3, 74, 3, -2),
    Sketcher.Constraint("Symmetric", 2, 3, 76, 3, -2),
    Sketcher.Constraint("Symmetric", 78, 2, 81, 2, -2),
    Sketcher.Constraint("Horizontal", 2, 3, 4, 3),
    Sketcher.Constraint("Horizontal", 1, 3, 5, 3),
    Sketcher.Constraint("Horizontal", 4, 3, 8, 3),
    Sketcher.Constraint("Horizontal", 3, 3, 9, 3),
    Sketcher.Constraint("Horizontal", 8, 3, 10, 3),
    Sketcher.Constraint("Horizontal", 7, 3, 11, 3),
    Sketcher.Constraint("Horizontal", 10, 3, 14, 3),
    Sketcher.Constraint("Horizontal", 9, 3, 15, 3),
    Sketcher.Constraint("Horizontal", 14, 3, 16, 3),
    Sketcher.Constraint("Horizontal", 13, 3, 17, 3),
    Sketcher.Constraint("Horizontal", 16, 3, 20, 3),
    Sketcher.Constraint("Horizontal", 15, 3, 21, 3),
    Sketcher.Constraint("Horizontal", 20, 3, 22, 3),
    Sketcher.Constraint("Horizontal", 19, 3, 23, 3),
    Sketcher.Constraint("Horizontal", 22, 3, 26, 3),
    Sketcher.Constraint("Horizontal", 21, 3, 27, 3),
    Sketcher.Constraint("Horizontal", 26, 3, 28, 3),
    Sketcher.Constraint("Horizontal", 25, 3, 29, 3),
    Sketcher.Constraint("Horizontal", 28, 3, 32, 3),
    Sketcher.Constraint("Horizontal", 27, 3, 33, 3),
    Sketcher.Constraint("Horizontal", 32, 3, 34, 3),
    Sketcher.Constraint("Horizontal", 31, 3, 35, 3),
    Sketcher.Constraint("Horizontal", 34, 3, 38, 3),
    Sketcher.Constraint("Horizontal", 33, 3, 39, 3),
    Sketcher.Constraint("Horizontal", 76, 3, 0, 2),
    Sketcher.Constraint("Equal", 6, 12),
    Sketcher.Constraint("Equal", 12, 18),
    Sketcher.Constraint("Equal", 18, 24),
    Sketcher.Constraint("Equal", 24, 30),
    Sketcher.Constraint("Equal", 30, 36),
    Sketcher.Constraint("Radius", 2, 1.0),
    Sketcher.Constraint("DistanceX", 80, 1, 80, 2, 26.0),
    Sketcher.Constraint("Radius", 1, 0.15),
    Sketcher.Constraint("DistanceX", -1, 1, 3, 3, 12.0),
    Sketcher.Constraint("Radius", 3, 0.555),
    Sketcher.Constraint("DistanceY", 79, 1, 79, 2, 0.63),
    Sketcher.Constraint("DistanceY", -1, 1, 1, 3, 1.5),
    Sketcher.Constraint("DistanceX", -1, 1, 2, 3, 11.6),
])
sketch4.setExpression("Constraints[208]", "Params.sketch4_radius")
sketch4.setExpression("Constraints[209]", "Params.sketch4_width")
sketch4.setExpression("Constraints[210]", "Params.sketch4_radius2")
sketch4.setExpression("Constraints[213]", "Params.sketch4_height")
pocket1 = body.newObject("PartDesign::Pocket", "Pocket")
pocket1.Profile = sketch4
pocket1.setExpression("Length", "Params.pocket1_length")
pocket1.Reversed = True

doc.recompute()
